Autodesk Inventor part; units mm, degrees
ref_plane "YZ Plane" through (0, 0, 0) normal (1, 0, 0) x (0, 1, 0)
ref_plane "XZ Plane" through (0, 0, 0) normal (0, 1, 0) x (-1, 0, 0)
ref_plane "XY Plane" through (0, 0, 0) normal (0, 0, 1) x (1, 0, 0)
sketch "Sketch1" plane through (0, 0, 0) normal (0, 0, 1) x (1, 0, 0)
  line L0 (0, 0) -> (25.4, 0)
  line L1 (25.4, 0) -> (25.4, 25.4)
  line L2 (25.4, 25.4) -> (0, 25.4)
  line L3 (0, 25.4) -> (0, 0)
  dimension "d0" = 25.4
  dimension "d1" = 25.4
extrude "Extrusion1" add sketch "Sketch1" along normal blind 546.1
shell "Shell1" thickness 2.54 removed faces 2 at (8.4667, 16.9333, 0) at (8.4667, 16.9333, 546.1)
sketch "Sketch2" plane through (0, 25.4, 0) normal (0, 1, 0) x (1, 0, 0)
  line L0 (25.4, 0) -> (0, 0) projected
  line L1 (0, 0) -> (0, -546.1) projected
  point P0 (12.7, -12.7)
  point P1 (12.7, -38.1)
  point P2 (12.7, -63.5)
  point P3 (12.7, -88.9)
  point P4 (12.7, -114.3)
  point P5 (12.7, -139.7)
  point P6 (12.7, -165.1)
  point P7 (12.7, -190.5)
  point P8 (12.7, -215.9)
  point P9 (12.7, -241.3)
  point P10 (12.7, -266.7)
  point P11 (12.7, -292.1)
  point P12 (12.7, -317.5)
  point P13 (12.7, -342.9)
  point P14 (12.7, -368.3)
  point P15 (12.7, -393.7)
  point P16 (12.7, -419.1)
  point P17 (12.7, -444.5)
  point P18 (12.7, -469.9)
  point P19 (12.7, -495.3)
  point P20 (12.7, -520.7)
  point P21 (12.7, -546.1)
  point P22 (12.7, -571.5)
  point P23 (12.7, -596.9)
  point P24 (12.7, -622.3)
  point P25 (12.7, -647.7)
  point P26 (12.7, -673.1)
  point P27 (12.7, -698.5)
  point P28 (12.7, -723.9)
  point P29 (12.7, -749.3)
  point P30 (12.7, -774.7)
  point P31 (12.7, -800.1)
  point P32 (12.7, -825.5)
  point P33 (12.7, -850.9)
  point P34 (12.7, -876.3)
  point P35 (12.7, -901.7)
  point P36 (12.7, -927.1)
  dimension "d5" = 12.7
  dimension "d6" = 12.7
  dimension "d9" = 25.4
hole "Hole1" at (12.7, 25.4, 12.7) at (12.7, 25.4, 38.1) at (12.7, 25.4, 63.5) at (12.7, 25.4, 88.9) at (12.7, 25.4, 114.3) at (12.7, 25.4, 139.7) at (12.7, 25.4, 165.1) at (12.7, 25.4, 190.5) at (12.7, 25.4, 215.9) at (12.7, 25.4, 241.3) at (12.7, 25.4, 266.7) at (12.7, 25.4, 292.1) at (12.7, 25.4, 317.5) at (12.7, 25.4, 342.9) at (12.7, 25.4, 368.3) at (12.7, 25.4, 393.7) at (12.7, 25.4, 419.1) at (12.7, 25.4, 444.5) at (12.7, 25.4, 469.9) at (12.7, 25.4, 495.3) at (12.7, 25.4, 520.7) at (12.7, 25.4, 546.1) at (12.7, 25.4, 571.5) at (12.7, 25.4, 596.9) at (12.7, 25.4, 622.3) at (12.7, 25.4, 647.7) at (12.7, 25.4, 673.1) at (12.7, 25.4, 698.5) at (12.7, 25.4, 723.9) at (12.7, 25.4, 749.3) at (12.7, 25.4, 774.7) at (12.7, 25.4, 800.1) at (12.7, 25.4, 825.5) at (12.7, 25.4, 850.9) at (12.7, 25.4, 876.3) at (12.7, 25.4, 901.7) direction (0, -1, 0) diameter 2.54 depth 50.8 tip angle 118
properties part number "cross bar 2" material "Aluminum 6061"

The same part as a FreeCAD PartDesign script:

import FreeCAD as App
import Part
import Sketcher
from FreeCAD import Vector
Q = App.Units.Quantity


def faces_at(feature, points):
    """Names of the faces that lie closest to the given points."""
    faces = feature.Shape.Faces
    near = lambda p: min(range(len(faces)), key=lambda i: faces[i].distToShape(Part.Vertex(*p))[0])
    return sorted({f"Face{near(p) + 1}" for p in points})

doc = App.newDocument("Part")
params = doc.addObject("Spreadsheet::Sheet", "Params")
for row, (alias, value) in enumerate([
    ("sketch1_width", "1 in"),
    ("pad1_length", "21.5 in"),
    ("thickness_wall", "0.1 in"),
    ("sketch2_diameter", "0.1 in"),
    ("hole_diameter", "0.1 in"),
    ("hole_depth", "2 in"),
], start=1):
    params.set(f"A{row}", alias)
    params.set(f"B{row}", "=" + value)
    params.setAlias(f"B{row}", alias)

body = doc.addObject("PartDesign::Body", "Body")

# Sketch on XY plane
sketch1 = body.newObject("Sketcher::SketchObject", "Sketch")
sketch1.AttachmentSupport = (doc.getObject("XY_Plane"), [""])
sketch1.MapMode = "FlatFace"
sketch1.addGeometry(Part.LineSegment(Vector(0, 25, 0), Vector(0, 0, 0)), False)
sketch1.addGeometry(Part.LineSegment(Vector(0, 0, 0), Vector(25, 0, 0)), False)
sketch1.addGeometry(Part.LineSegment(Vector(25, 0, 0), Vector(25, 25, 0)), False)
sketch1.addGeometry(Part.LineSegment(Vector(25, 25, 0), Vector(0, 25, 0)), False)
sketch1.addConstraint(Sketcher.Constraint("Coincident", 0, 2, 1, 1))
sketch1.addConstraint(Sketcher.Constraint("Coincident", 1, 2, 2, 1))
sketch1.addConstraint(Sketcher.Constraint("Coincident", 2, 2, 3, 1))
sketch1.addConstraint(Sketcher.Constraint("Coincident", 3, 2, 0, 1))
sketch1.addConstraint(Sketcher.Constraint("Vertical", 0))
sketch1.addConstraint(Sketcher.Constraint("Horizontal", 1))
sketch1.addConstraint(Sketcher.Constraint("Vertical", 2))
sketch1.addConstraint(Sketcher.Constraint("Horizontal", 3))
sketch1.addConstraint(Sketcher.Constraint("Coincident", 0, 2, -1, 1))
sketch1.addConstraint(Sketcher.Constraint("Equal", 3, 0))
sketch1.addConstraint(Sketcher.Constraint("DistanceX", 1, 1, 1, 2, Q("1 in")))
sketch1.setExpression("Constraints[10]", "Params.sketch1_width")
pad1 = body.newObject("PartDesign::Pad", "Pad")
pad1.Profile = sketch1
pad1.setExpression("Length", "Params.pad1_length")
doc.recompute()

thickness = body.newObject("PartDesign::Thickness", "Thickness")
thickness.Base = (pad1, faces_at(pad1, [(8.467, 16.933, 0), (8.467, 16.933, 546.1)]))
thickness.setExpression("Value", "Params.thickness_wall")
thickness.Reversed = True
thickness.Join = "Intersection"

# Sketch on XZ plane
sketch2 = body.newObject("Sketcher::SketchObject", "Sketch001")
sketch2.AttachmentSupport = (doc.getObject("XZ_Plane"), [""])
sketch2.MapMode = "FlatFace"
sketch2.AttachmentOffset = App.Placement(Vector(0, 0, -1 * 25.4), App.Rotation())
sketch2.addGeometry(Part.Circle(Vector(12.7, 12.7, 0), Vector(0, 0, 1), 1.3), False)
sketch2.addGeometry(Part.Circle(Vector(12.7, 38.1, 0), Vector(0, 0, 1), 1.3), False)
sketch2.addGeometry(Part.Circle(Vector(12.7, 63.5, 0), Vector(0, 0, 1), 1.3), False)
sketch2.addGeometry(Part.Circle(Vector(12.7, 88.9, 0), Vector(0, 0, 1), 1.3), False)
sketch2.addGeometry(Part.Circle(Vector(12.7, 114.3, 0), Vector(0, 0, 1), 1.3), False)
sketch2.addGeometry(Part.Circle(Vector(12.7, 139.7, 0), Vector(0, 0, 1), 1.3), False)
sketch2.addGeometry(Part.Circle(Vector(12.7, 165.1, 0), Vector(0, 0, 1), 1.3), False)
sketch2.addGeometry(Part.Circle(Vector(12.7, 190.5, 0), Vector(0, 0, 1), 1.3), False)
sketch2.addGeometry(Part.Circle(Vector(12.7, 215.9, 0), Vector(0, 0, 1), 1.3), False)
sketch2.addGeometry(Part.Circle(Vector(12.7, 241.3, 0), Vector(0, 0, 1), 1.3), False)
sketch2.addGeometry(Part.Circle(Vector(12.7, 266.7, 0), Vector(0, 0, 1), 1.3), False)
sketch2.addGeometry(Part.Circle(Vector(12.7, 292.1, 0), Vector(0, 0, 1), 1.3), False)
sketch2.addGeometry(Part.Circle(Vector(12.7, 317.5, 0), Vector(0, 0, 1), 1.3), False)
sketch2.addGeometry(Part.Circle(Vector(12.7, 342.9, 0), Vector(0, 0, 1), 1.3), False)
sketch2.addGeometry(Part.Circle(Vector(12.7, 368.3, 0), Vector(0, 0, 1), 1.3), False)
sketch2.addGeometry(Part.Circle(Vector(12.7, 393.7, 0), Vector(0, 0, 1), 1.3), False)
sketch2.addGeometry(Part.Circle(Vector(12.7, 419.1, 0), Vector(0, 0, 1), 1.3), False)
sketch2.addGeometry(Part.Circle(Vector(12.7, 444.5, 0), Vector(0, 0, 1), 1.3), False)
sketch2.addGeometry(Part.Circle(Vector(12.7, 469.9, 0), Vector(0, 0, 1), 1.3), False)
sketch2.addGeometry(Part.Circle(Vector(12.7, 495.3, 0), Vector(0, 0, 1), 1.3), False)
sketch2.addGeometry(Part.Circle(Vector(12.7, 520.7, 0), Vector(0, 0, 1), 1.3), False)
sketch2.addGeometry(Part.Circle(Vector(12.7, 546.1, 0), Vector(0, 0, 1), 1.3), False)
sketch2.addGeometry(Part.Circle(Vector(12.7, 571.5, 0), Vector(0, 0, 1), 1.3), False)
sketch2.addGeometry(Part.Circle(Vector(12.7, 596.9, 0), Vector(0, 0, 1), 1.3), False)
sketch2.addGeometry(Part.Circle(Vector(12.7, 622.3, 0), Vector(0, 0, 1), 1.3), False)
sketch2.addGeometry(Part.Circle(Vector(12.7, 647.7, 0), Vector(0, 0, 1), 1.3), False)
sketch2.addGeometry(Part.Circle(Vector(12.7, 673.1, 0), Vector(0, 0, 1), 1.3), False)
sketch2.addGeometry(Part.Circle(Vector(12.7, 698.5, 0), Vector(0, 0, 1), 1.3), False)
sketch2.addGeometry(Part.Circle(Vector(12.7, 723.9, 0), Vector(0, 0, 1), 1.3), False)
sketch2.addGeometry(Part.Circle(Vector(12.7, 749.3, 0), Vector(0, 0, 1), 1.3), False)
sketch2.addGeometry(Part.Circle(Vector(12.7, 774.7, 0), Vector(0, 0, 1), 1.3), False)
sketch2.addGeometry(Part.Circle(Vector(12.7, 800.1, 0), Vector(0, 0, 1), 1.3), False)
sketch2.addGeometry(Part.Circle(Vector(12.7, 825.5, 0), Vector(0, 0, 1), 1.3), False)
sketch2.addGeometry(Part.Circle(Vector(12.7, 850.9, 0), Vector(0, 0, 1), 1.3), False)
sketch2.addGeometry(Part.Circle(Vector(12.7, 876.3, 0), Vector(0, 0, 1), 1.3), False)
sketch2.addGeometry(Part.Circle(Vector(12.7, 901.7, 0), Vector(0, 0, 1), 1.3), False)
sketch2.addConstraint(Sketcher.Constraint("Equal", 0, 1))
sketch2.addConstraint(Sketcher.Constraint("Equal", 1, 2))
sketch2.addConstraint(Sketcher.Constraint("Equal", 2, 3))
sketch2.addConstraint(Sketcher.Constraint("Equal", 3, 4))
sketch2.addConstraint(Sketcher.Constraint("Equal", 4, 5))
sketch2.addConstraint(Sketcher.Constraint("Equal", 5, 6))
sketch2.addConstraint(Sketcher.Constraint("Equal", 6, 7))
sketch2.addConstraint(Sketcher.Constraint("Equal", 7, 8))
sketch2.addConstraint(Sketcher.Constraint("Equal", 8, 9))
sketch2.addConstraint(Sketcher.Constraint("Equal", 9, 10))
sketch2.addConstraint(Sketcher.Constraint("Equal", 10, 11))
sketch2.addConstraint(Sketcher.Constraint("Equal", 11, 12))
sketch2.addConstraint(Sketcher.Constraint("Equal", 12, 13))
sketch2.addConstraint(Sketcher.Constraint("Equal", 13, 14))
sketch2.addConstraint(Sketcher.Constraint("Equal", 14, 15))
sketch2.addConstraint(Sketcher.Constraint("Equal", 15, 16))
sketch2.addConstraint(Sketcher.Constraint("Equal", 16, 17))
sketch2.addConstraint(Sketcher.Constraint("Equal", 17, 18))
sketch2.addConstraint(Sketcher.Constraint("Equal", 18, 19))
sketch2.addConstraint(Sketcher.Constraint("Equal", 19, 20))
sketch2.addConstraint(Sketcher.Constraint("Equal", 20, 21))
sketch2.addConstraint(Sketcher.Constraint("Equal", 21, 22))
sketch2.addConstraint(Sketcher.Constraint("Equal", 22, 23))
sketch2.addConstraint(Sketcher.Constraint("Equal", 23, 24))
sketch2.addConstraint(Sketcher.Constraint("Equal", 24, 25))
sketch2.addConstraint(Sketcher.Constraint("Equal", 25, 26))
sketch2.addConstraint(Sketcher.Constraint("Equal", 26, 27))
sketch2.addConstraint(Sketcher.Constraint("Equal", 27, 28))
sketch2.addConstraint(Sketcher.Constraint("Equal", 28, 29))
sketch2.addConstraint(Sketcher.Constraint("Equal", 29, 30))
sketch2.addConstraint(Sketcher.Constraint("Equal", 30, 31))
sketch2.addConstraint(Sketcher.Constraint("Equal", 31, 32))
sketch2.addConstraint(Sketcher.Constraint("Equal", 32, 33))
sketch2.addConstraint(Sketcher.Constraint("Equal", 33, 34))
sketch2.addConstraint(Sketcher.Constraint("Equal", 34, 35))
sketch2.addConstraint(Sketcher.Constraint("Vertical", 0, 3, 1, 3))
sketch2.addConstraint(Sketcher.Constraint("Vertical", 1, 3, 2, 3))
sketch2.addConstraint(Sketcher.Constraint("Vertical", 2, 3, 3, 3))
sketch2.addConstraint(Sketcher.Constraint("Vertical", 3, 3, 4, 3))
sketch2.addConstraint(Sketcher.Constraint("Vertical", 4, 3, 5, 3))
sketch2.addConstraint(Sketcher.Constraint("Vertical", 5, 3, 6, 3))
sketch2.addConstraint(Sketcher.Constraint("Vertical", 6, 3, 7, 3))
sketch2.addConstraint(Sketcher.Constraint("Vertical", 7, 3, 8, 3))
sketch2.addConstraint(Sketcher.Constraint("Vertical", 8, 3, 9, 3))
sketch2.addConstraint(Sketcher.Constraint("Vertical", 9, 3, 10, 3))
sketch2.addConstraint(Sketcher.Constraint("Vertical", 10, 3, 11, 3))
sketch2.addConstraint(Sketcher.Constraint("Vertical", 11, 3, 12, 3))
sketch2.addConstraint(Sketcher.Constraint("Vertical", 12, 3, 13, 3))
sketch2.addConstraint(Sketcher.Constraint("Vertical", 13, 3, 14, 3))
sketch2.addConstraint(Sketcher.Constraint("Vertical", 14, 3, 15, 3))
sketch2.addConstraint(Sketcher.Constraint("Vertical", 15, 3, 16, 3))
sketch2.addConstraint(Sketcher.Constraint("Vertical", 16, 3, 17, 3))
sketch2.addConstraint(Sketcher.Constraint("Vertical", 17, 3, 18, 3))
sketch2.addConstraint(Sketcher.Constraint("Vertical", 18, 3, 19, 3))
sketch2.addConstraint(Sketcher.Constraint("Vertical", 19, 3, 20, 3))
sketch2.addConstraint(Sketcher.Constraint("Vertical", 20, 3, 21, 3))
sketch2.addConstraint(Sketcher.Constraint("Vertical", 21, 3, 22, 3))
sketch2.addConstraint(Sketcher.Constraint("Vertical", 22, 3, 23, 3))
sketch2.addConstraint(Sketcher.Constraint("Vertical", 23, 3, 24, 3))
sketch2.addConstraint(Sketcher.Constraint("Vertical", 24, 3, 25, 3))
sketch2.addConstraint(Sketcher.Constraint("Vertical", 25, 3, 26, 3))
sketch2.addConstraint(Sketcher.Constraint("Vertical", 26, 3, 27, 3))
sketch2.addConstraint(Sketcher.Constraint("Vertical", 27, 3, 28, 3))
sketch2.addConstraint(Sketcher.Constraint("Vertical", 28, 3, 29, 3))
sketch2.addConstraint(Sketcher.Constraint("Vertical", 29, 3, 30, 3))
sketch2.addConstraint(Sketcher.Constraint("Vertical", 30, 3, 31, 3))
sketch2.addConstraint(Sketcher.Constraint("Vertical", 31, 3, 32, 3))
sketch2.addConstraint(Sketcher.Constraint("Vertical", 32, 3, 33, 3))
sketch2.addConstraint(Sketcher.Constraint("Vertical", 33, 3, 34, 3))
sketch2.addConstraint(Sketcher.Constraint("Vertical", 34, 3, 35, 3))
sketch2.addConstraint(Sketcher.Constraint("Diameter", 0, Q("0.1 in")))
sketch2.addConstraint(Sketcher.Constraint("DistanceY", 0, 3, 1, 3, Q("1 in")))
sketch2.addConstraint(Sketcher.Constraint("DistanceY", 1, 3, 2, 3, Q("1 in")))
sketch2.addConstraint(Sketcher.Constraint("DistanceY", 2, 3, 3, 3, Q("1 in")))
sketch2.addConstraint(Sketcher.Constraint("DistanceY", 3, 3, 4, 3, Q("1 in")))
sketch2.addConstraint(Sketcher.Constraint("DistanceY", 4, 3, 5, 3, Q("1 in")))
sketch2.addConstraint(Sketcher.Constraint("DistanceY", 5, 3, 6, 3, Q("1 in")))
sketch2.addConstraint(Sketcher.Constraint("DistanceY", 6, 3, 7, 3, Q("1 in")))
sketch2.addConstraint(Sketcher.Constraint("DistanceY", 7, 3, 8, 3, Q("1 in")))
sketch2.addConstraint(Sketcher.Constraint("DistanceY", 8, 3, 9, 3, Q("1 in")))
sketch2.addConstraint(Sketcher.Constraint("DistanceY", 9, 3, 10, 3, Q("1 in")))
sketch2.addConstraint(Sketcher.Constraint("DistanceY", 10, 3, 11, 3, Q("1 in")))
sketch2.addConstraint(Sketcher.Constraint("DistanceY", 11, 3, 12, 3, Q("1 in")))
sketch2.addConstraint(Sketcher.Constraint("DistanceY", 12, 3, 13, 3, Q("1 in")))
sketch2.addConstraint(Sketcher.Constraint("DistanceY", 13, 3, 14, 3, Q("1 in")))
sketch2.addConstraint(Sketcher.Constraint("DistanceY", 14, 3, 15, 3, Q("1 in")))
sketch2.addConstraint(Sketcher.Constraint("DistanceY", 15, 3, 16, 3, Q("1 in")))
sketch2.addConstraint(Sketcher.Constraint("DistanceY", 16, 3, 17, 3, Q("1 in")))
sketch2.addConstraint(Sketcher.Constraint("DistanceY", 17, 3, 18, 3, Q("1 in")))
sketch2.addConstraint(Sketcher.Constraint("DistanceY", 18, 3, 19, 3, Q("1 in")))
sketch2.addConstraint(Sketcher.Constraint("DistanceY", 19, 3, 20, 3, Q("1 in")))
sketch2.addConstraint(Sketcher.Constraint("DistanceY", 20, 3, 21, 3, Q("1 in")))
sketch2.addConstraint(Sketcher.Constraint("DistanceY", 21, 3, 22, 3, Q("1 in")))
sketch2.addConstraint(Sketcher.Constraint("DistanceY", 22, 3, 23, 3, Q("1 in")))
sketch2.addConstraint(Sketcher.Constraint("DistanceY", 23, 3, 24, 3, Q("1 in")))
sketch2.addConstraint(Sketcher.Constraint("DistanceY", 24, 3, 25, 3, Q("1 in")))
sketch2.addConstraint(Sketcher.Constraint("DistanceY", 25, 3, 26, 3, Q("1 in")))
sketch2.addConstraint(Sketcher.Constraint("DistanceY", 26, 3, 27, 3, Q("1 in")))
sketch2.addConstraint(Sketcher.Constraint("DistanceY", 27, 3, 28, 3, Q("1 in")))
sketch2.addConstraint(Sketcher.Constraint("DistanceY", 28, 3, 29, 3, Q("1 in")))
sketch2.addConstraint(Sketcher.Constraint("DistanceY", 29, 3, 30, 3, Q("1 in")))
sketch2.addConstraint(Sketcher.Constraint("DistanceY", 30, 3, 31, 3, Q("1 in")))
sketch2.addConstraint(Sketcher.Constraint("DistanceY", 31, 3, 32, 3, Q("1 in")))
sketch2.addConstraint(Sketcher.Constraint("DistanceY", 32, 3, 33, 3, Q("1 in")))
sketch2.addConstraint(Sketcher.Constraint("DistanceY", 33, 3, 34, 3, Q("1 in")))
sketch2.addConstraint(Sketcher.Constraint("DistanceY", 34, 3, 35, 3, Q("1 in")))
sketch2.addConstraint(Sketcher.Constraint("DistanceX", -1, 1, 0, 3, Q("0.5 in")))
sketch2.addConstraint(Sketcher.Constraint("DistanceY", -1, 1, 0, 3, Q("0.5 in")))
sketch2.setExpression("Constraints[70]", "Params.sketch2_diameter")
doc.recompute()
hole = body.newObject("PartDesign::Hole", "Hole")
hole.Profile = sketch2
hole.ThreadType = "None"
hole.setExpression("Diameter", "Params.hole_diameter")
hole.DepthType = "Dimension"
hole.setExpression("Depth", "Params.hole_depth")
hole.DrillPoint = "Angled"
hole.DrillPointAngle = 118
hole.Reversed = True

doc.recompute()
